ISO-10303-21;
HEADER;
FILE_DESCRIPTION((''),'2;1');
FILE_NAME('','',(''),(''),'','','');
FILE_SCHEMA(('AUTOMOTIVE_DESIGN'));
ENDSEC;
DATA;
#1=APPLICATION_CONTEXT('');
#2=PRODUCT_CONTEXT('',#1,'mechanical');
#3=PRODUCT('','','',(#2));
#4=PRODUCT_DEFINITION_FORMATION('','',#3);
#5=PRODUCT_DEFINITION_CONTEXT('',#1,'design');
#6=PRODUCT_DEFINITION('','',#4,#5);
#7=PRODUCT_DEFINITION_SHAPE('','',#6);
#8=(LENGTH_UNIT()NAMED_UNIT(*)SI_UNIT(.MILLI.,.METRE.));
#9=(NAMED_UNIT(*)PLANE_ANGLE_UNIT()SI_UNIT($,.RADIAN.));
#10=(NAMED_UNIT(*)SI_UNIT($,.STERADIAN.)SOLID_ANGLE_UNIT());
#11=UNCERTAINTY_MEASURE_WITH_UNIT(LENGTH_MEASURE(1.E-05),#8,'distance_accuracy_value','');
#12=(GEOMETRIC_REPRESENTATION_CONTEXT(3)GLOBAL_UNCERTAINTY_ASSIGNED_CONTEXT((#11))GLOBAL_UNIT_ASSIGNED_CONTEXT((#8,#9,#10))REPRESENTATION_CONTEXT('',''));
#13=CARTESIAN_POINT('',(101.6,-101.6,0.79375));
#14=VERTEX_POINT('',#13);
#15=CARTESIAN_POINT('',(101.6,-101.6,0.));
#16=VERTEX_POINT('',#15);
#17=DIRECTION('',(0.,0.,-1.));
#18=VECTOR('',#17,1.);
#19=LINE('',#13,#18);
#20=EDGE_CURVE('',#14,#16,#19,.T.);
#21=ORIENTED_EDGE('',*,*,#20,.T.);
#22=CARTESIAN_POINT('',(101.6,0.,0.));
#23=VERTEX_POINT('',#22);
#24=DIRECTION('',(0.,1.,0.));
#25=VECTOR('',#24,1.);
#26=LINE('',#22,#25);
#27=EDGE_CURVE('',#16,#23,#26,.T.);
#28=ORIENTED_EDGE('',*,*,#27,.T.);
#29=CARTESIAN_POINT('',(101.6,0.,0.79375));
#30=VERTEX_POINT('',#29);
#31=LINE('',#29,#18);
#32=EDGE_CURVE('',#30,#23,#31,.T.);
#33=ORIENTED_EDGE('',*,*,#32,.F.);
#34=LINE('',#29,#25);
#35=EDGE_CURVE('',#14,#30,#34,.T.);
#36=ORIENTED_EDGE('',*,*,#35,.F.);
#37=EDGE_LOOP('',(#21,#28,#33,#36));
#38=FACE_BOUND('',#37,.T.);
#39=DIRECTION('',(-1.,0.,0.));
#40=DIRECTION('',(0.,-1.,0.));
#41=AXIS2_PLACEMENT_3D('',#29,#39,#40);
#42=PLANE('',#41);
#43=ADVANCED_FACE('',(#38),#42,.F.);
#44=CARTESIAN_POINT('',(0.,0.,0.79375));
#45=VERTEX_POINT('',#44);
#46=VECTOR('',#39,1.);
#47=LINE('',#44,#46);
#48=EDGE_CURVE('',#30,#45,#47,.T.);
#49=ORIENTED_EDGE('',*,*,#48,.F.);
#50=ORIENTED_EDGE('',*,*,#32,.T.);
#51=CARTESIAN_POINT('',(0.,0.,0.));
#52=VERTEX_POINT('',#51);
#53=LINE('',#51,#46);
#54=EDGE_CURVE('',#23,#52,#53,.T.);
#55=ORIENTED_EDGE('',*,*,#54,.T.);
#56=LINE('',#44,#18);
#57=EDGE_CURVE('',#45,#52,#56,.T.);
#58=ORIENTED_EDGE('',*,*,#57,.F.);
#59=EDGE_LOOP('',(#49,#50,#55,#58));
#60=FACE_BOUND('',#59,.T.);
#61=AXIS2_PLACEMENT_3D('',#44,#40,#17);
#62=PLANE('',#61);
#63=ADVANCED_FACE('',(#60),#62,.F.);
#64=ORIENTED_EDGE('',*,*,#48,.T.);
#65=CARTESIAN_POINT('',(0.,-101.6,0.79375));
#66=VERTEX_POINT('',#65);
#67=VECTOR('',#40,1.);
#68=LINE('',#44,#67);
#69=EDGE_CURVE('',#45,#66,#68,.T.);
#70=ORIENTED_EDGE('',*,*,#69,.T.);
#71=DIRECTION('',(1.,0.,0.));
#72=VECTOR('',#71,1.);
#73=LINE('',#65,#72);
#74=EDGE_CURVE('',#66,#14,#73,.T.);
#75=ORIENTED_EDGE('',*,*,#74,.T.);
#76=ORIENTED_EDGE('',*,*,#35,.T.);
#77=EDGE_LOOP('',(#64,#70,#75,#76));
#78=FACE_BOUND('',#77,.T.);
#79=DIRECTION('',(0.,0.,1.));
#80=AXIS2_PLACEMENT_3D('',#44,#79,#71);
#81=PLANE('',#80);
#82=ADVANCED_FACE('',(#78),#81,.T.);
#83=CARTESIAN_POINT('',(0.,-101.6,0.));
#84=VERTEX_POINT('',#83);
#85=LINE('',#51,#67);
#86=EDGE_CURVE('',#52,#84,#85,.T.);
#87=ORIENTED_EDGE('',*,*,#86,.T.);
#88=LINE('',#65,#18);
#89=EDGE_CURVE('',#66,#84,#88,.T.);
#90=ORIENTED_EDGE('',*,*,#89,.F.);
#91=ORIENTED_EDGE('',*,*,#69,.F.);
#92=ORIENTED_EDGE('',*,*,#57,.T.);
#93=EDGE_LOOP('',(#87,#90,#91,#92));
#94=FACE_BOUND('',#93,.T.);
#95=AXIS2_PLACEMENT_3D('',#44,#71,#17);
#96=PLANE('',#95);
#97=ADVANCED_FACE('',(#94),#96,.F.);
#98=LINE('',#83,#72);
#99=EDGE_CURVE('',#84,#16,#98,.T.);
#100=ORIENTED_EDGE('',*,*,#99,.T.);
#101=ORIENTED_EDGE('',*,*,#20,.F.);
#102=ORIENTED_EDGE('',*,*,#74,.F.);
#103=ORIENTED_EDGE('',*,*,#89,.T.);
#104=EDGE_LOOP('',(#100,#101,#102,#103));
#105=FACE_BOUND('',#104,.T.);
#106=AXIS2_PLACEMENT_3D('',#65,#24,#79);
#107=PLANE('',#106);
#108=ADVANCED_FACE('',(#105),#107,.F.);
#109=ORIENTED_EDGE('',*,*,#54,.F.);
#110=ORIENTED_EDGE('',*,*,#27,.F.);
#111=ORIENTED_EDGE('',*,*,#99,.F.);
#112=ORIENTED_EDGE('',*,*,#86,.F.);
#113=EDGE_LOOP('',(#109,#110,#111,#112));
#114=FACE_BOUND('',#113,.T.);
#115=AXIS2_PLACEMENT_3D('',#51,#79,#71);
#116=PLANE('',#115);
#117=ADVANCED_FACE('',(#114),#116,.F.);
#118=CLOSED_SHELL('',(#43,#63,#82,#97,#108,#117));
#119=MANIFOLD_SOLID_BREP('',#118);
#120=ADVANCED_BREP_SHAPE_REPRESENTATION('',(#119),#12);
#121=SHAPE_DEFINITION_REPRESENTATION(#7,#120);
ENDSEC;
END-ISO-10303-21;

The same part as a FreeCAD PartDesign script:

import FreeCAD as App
import Part
import Sketcher

V = App.Vector
Q = App.Units.Quantity


def add_polygon(sketch, points):
    """Adds a closed chain of lines whose ends are joined by coincident constraints."""
    first, n = sketch.GeometryCount, len(points)
    for a, b in zip(points, points[1:] + points[:1]):
        sketch.addGeometry(Part.LineSegment(App.Vector(*a, 0), App.Vector(*b, 0)), False)
    for i in range(n):
        sketch.addConstraint(Sketcher.Constraint("Coincident", first + i, 2, first + (i + 1) % n, 1))

doc = App.newDocument("Part")
body = doc.addObject("PartDesign::Body", "Body")

# Sketch on XY plane
sketch1 = body.newObject("Sketcher::SketchObject", "Sketch")
sketch1.AttachmentSupport = (doc.getObject("XY_Plane"), [""])
sketch1.MapMode = "FlatFace"
add_polygon(sketch1, [(0, 0), (0, -102), (102, -102), (102, 0)])  # lines 0-3
sketch1.addConstraint([
    Sketcher.Constraint("Vertical", 0),
    Sketcher.Constraint("Horizontal", 1),
    Sketcher.Constraint("Vertical", 2),
    Sketcher.Constraint("Horizontal", 3),
    Sketcher.Constraint("Coincident", 3, 2, -1, 1),
    Sketcher.Constraint("Equal", 3, 0),
    Sketcher.Constraint("DistanceX", 1, 1, 1, 2, Q("4 in")),
])
pad1 = body.newObject("PartDesign::Pad", "Pad")
pad1.Profile = sketch1
pad1.Length = Q("0.03125 in")

doc.recompute()
